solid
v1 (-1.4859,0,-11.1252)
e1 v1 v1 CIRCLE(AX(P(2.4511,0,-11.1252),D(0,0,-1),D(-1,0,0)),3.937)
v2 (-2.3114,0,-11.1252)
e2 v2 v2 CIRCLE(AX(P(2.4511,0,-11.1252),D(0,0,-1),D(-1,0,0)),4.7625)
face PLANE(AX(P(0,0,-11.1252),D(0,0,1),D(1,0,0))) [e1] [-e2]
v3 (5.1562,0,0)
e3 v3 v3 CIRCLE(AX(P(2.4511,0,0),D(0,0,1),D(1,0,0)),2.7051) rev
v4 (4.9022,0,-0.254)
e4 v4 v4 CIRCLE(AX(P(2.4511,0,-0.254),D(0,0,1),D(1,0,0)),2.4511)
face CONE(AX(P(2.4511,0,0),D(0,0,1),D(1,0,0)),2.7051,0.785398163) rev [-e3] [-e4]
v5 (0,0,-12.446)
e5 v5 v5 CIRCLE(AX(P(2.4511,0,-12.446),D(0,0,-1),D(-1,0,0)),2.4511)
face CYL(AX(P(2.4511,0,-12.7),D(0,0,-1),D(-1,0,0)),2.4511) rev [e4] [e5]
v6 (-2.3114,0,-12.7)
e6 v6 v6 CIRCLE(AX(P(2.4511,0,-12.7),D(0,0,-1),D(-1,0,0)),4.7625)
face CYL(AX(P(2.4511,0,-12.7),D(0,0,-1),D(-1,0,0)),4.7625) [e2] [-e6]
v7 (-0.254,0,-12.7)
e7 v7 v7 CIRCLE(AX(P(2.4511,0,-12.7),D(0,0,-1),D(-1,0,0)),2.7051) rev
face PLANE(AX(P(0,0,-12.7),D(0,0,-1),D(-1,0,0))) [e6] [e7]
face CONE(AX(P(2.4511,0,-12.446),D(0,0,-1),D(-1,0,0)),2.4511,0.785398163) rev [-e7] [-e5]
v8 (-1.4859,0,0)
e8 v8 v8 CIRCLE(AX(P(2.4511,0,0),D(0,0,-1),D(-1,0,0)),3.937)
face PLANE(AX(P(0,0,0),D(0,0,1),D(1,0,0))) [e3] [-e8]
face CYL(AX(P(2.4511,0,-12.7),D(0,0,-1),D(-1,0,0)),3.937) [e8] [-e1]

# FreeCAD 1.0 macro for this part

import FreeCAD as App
import Part
import Sketcher
from FreeCAD import Vector
Q = App.Units.Quantity


def edges_at(feature, points):
    """Names of the edges that pass closest to the given points."""
    edges = feature.Shape.Edges
    near = lambda p: min(range(len(edges)), key=lambda i: edges[i].distToShape(Part.Vertex(*p))[0])
    return sorted({f"Edge{near(p) + 1}" for p in points})

doc = App.newDocument("Part")
body = doc.addObject("PartDesign::Body", "Body")

sketch1 = body.newObject("Sketcher::SketchObject", "Sketch")
sketch1.AttachmentSupport = (doc.getObject("XZ_Plane"), [""])
sketch1.MapMode = "FlatFace"
sketch1.addGeometry(Part.LineSegment(Vector(-1.5, -11.1, 0), Vector(-1.5, 0, 0)), False)
sketch1.addGeometry(Part.LineSegment(Vector(-1.5, 0, 0), Vector(0, 0, 0)), False)
sketch1.addGeometry(Part.LineSegment(Vector(0, 0, 0), Vector(0, -12.7, 0)), False)
sketch1.addGeometry(Part.LineSegment(Vector(0, -12.7, 0), Vector(-2.3, -12.7, 0)), False)
sketch1.addGeometry(Part.LineSegment(Vector(-2.3, -12.7, 0), Vector(-2.3, -11.1, 0)), False)
sketch1.addGeometry(Part.LineSegment(Vector(-2.3, -11.1, 0), Vector(-1.5, -11.1, 0)), False)
sketch1.addGeometry(Part.LineSegment(Vector(2.5, -12.7, 0), Vector(2.5, 0, 0)), True)
sketch1.addConstraint(Sketcher.Constraint("Coincident", 0, 2, 1, 1))
sketch1.addConstraint(Sketcher.Constraint("Coincident", 1, 2, 2, 1))
sketch1.addConstraint(Sketcher.Constraint("Coincident", 2, 2, 3, 1))
sketch1.addConstraint(Sketcher.Constraint("Coincident", 3, 2, 4, 1))
sketch1.addConstraint(Sketcher.Constraint("Coincident", 4, 2, 5, 1))
sketch1.addConstraint(Sketcher.Constraint("Coincident", 5, 2, 0, 1))
sketch1.addConstraint(Sketcher.Constraint("Vertical", 0))
sketch1.addConstraint(Sketcher.Constraint("Horizontal", 1))
sketch1.addConstraint(Sketcher.Constraint("Vertical", 2))
sketch1.addConstraint(Sketcher.Constraint("Horizontal", 3))
sketch1.addConstraint(Sketcher.Constraint("Vertical", 4))
sketch1.addConstraint(Sketcher.Constraint("Horizontal", 5))
sketch1.addConstraint(Sketcher.Constraint("Vertical", 6))
sketch1.addConstraint(Sketcher.Constraint("Coincident", 1, 2, -1, 1))
sketch1.addConstraint(Sketcher.Constraint("PointOnObject", 6, 2, -1))
sketch1.addConstraint(Sketcher.Constraint("Horizontal", 3, 2, 6, 1))
sketch1.addConstraint(Sketcher.Constraint("DistanceY", 2, 2, 2, 1, Q("0.5 in")))
sketch1.addConstraint(Sketcher.Constraint("DistanceX", 3, 2, 3, 1, Q("0.091 in")))
sketch1.addConstraint(Sketcher.Constraint("DistanceY", 0, 1, 0, 2, Q("0.438 in")))
sketch1.addConstraint(Sketcher.Constraint("DistanceX", 1, 1, 1, 2, Q("0.0585 in")))
sketch1.addConstraint(Sketcher.Constraint("DistanceX", 5, 2, 6, 1, Q("0.155 in")))
revolution = body.newObject("PartDesign::Revolution", "Revolution")
revolution.Profile = sketch1
revolution.ReferenceAxis = (sketch1, ["Axis0"])
revolution.Angle = 360
doc.recompute()

chamfer = body.newObject("PartDesign::Chamfer", "Chamfer")
chamfer.Base = (revolution, edges_at(revolution, [(4.902, 0, -12.7), (4.902, 0, 0)]))
chamfer.Size = Q("0.01 in")

doc.recompute()
